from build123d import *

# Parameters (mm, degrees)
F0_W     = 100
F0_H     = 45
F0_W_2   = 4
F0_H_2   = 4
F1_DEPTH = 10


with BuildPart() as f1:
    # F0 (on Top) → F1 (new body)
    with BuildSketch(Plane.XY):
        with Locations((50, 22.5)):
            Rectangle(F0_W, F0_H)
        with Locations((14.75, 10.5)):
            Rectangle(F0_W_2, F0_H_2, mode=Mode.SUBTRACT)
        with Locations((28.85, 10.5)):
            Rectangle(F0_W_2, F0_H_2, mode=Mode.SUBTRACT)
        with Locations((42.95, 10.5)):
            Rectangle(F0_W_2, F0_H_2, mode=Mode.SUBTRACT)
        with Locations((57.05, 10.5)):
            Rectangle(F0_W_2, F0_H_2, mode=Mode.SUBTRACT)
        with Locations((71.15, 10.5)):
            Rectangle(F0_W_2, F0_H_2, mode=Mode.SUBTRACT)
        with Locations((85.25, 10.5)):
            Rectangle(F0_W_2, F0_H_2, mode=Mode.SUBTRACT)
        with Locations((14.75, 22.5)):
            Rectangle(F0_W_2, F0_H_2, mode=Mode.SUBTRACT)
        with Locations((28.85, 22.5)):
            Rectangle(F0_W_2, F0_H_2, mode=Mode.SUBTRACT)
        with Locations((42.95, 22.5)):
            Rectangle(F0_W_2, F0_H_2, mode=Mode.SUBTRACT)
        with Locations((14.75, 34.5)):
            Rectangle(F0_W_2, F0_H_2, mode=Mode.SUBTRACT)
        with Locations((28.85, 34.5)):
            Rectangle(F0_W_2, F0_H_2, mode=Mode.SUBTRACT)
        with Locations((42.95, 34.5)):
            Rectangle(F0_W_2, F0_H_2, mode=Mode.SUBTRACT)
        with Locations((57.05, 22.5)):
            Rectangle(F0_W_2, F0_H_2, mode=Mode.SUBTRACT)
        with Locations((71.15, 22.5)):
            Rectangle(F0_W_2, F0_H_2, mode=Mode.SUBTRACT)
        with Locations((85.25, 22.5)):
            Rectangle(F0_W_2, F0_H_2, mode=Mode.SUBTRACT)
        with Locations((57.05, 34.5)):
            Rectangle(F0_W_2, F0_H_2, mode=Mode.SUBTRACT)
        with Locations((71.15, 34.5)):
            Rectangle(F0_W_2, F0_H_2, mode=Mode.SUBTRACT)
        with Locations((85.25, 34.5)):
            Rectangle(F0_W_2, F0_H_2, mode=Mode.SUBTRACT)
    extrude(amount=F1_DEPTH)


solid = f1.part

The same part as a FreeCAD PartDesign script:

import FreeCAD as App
import Part
import Sketcher
from FreeCAD import Vector
Q = App.Units.Quantity

doc = App.newDocument("Part")
body = doc.addObject("PartDesign::Body", "Body")

# Sketch on XY plane
sketch1 = body.newObject("Sketcher::SketchObject", "Sketch")
sketch1.AttachmentSupport = (doc.getObject("XY_Plane"), [""])
sketch1.MapMode = "FlatFace"
sketch1.addGeometry([
    Part.LineSegment(Vector(0, 45, 0), Vector(0, 0, 0)),  # 0
    Part.LineSegment(Vector(0, 0, 0), Vector(100, 0, 0)),  # 1
    Part.LineSegment(Vector(100, 0, 0), Vector(100, 45, 0)),  # 2
    Part.LineSegment(Vector(100, 45, 0), Vector(0, 45, 0)),  # 3
    Part.LineSegment(Vector(16.8, 8.5, 0), Vector(12.8, 8.5, 0)),  # 4
    Part.LineSegment(Vector(12.8, 8.5, 0), Vector(12.8, 12.5, 0)),  # 5
    Part.LineSegment(Vector(12.8, 12.5, 0), Vector(16.8, 12.5, 0)),  # 6
    Part.LineSegment(Vector(16.8, 12.5, 0), Vector(16.8, 8.5, 0)),  # 7
    Part.LineSegment(Vector(30.9, 8.5, 0), Vector(26.9, 8.5, 0)),  # 8
    Part.LineSegment(Vector(26.9, 8.5, 0), Vector(26.9, 12.5, 0)),  # 9
    Part.LineSegment(Vector(26.9, 12.5, 0), Vector(30.9, 12.5, 0)),  # 10
    Part.LineSegment(Vector(30.9, 12.5, 0), Vector(30.9, 8.5, 0)),  # 11
    Part.LineSegment(Vector(45, 8.5, 0), Vector(41, 8.5, 0)),  # 12
    Part.LineSegment(Vector(41, 8.5, 0), Vector(41, 12.5, 0)),  # 13
    Part.LineSegment(Vector(41, 12.5, 0), Vector(45, 12.5, 0)),  # 14
    Part.LineSegment(Vector(45, 12.5, 0), Vector(45, 8.5, 0)),  # 15
    Part.LineSegment(Vector(59, 8.5, 0), Vector(55, 8.5, 0)),  # 16
    Part.LineSegment(Vector(55, 8.5, 0), Vector(55, 12.5, 0)),  # 17
    Part.LineSegment(Vector(55, 12.5, 0), Vector(59, 12.5, 0)),  # 18
    Part.LineSegment(Vector(59, 12.5, 0), Vector(59, 8.5, 0)),  # 19
    Part.LineSegment(Vector(73.2, 8.5, 0), Vector(69.2, 8.5, 0)),  # 20
    Part.LineSegment(Vector(69.2, 8.5, 0), Vector(69.2, 12.5, 0)),  # 21
    Part.LineSegment(Vector(69.2, 12.5, 0), Vector(73.2, 12.5, 0)),  # 22
    Part.LineSegment(Vector(73.2, 12.5, 0), Vector(73.2, 8.5, 0)),  # 23
    Part.LineSegment(Vector(87.2, 8.5, 0), Vector(83.2, 8.5, 0)),  # 24
    Part.LineSegment(Vector(83.2, 8.5, 0), Vector(83.2, 12.5, 0)),  # 25
    Part.LineSegment(Vector(83.2, 12.5, 0), Vector(87.2, 12.5, 0)),  # 26
    Part.LineSegment(Vector(87.2, 12.5, 0), Vector(87.2, 8.5, 0)),  # 27
    Part.LineSegment(Vector(16.8, 20.5, 0), Vector(12.8, 20.5, 0)),  # 28
    Part.LineSegment(Vector(12.8, 20.5, 0), Vector(12.8, 24.5, 0)),  # 29
    Part.LineSegment(Vector(12.8, 24.5, 0), Vector(16.8, 24.5, 0)),  # 30
    Part.LineSegment(Vector(16.8, 24.5, 0), Vector(16.8, 20.5, 0)),  # 31
    Part.LineSegment(Vector(30.9, 20.5, 0), Vector(26.9, 20.5, 0)),  # 32
    Part.LineSegment(Vector(26.9, 20.5, 0), Vector(26.9, 24.5, 0)),  # 33
    Part.LineSegment(Vector(26.9, 24.5, 0), Vector(30.9, 24.5, 0)),  # 34
    Part.LineSegment(Vector(30.9, 24.5, 0), Vector(30.9, 20.5, 0)),  # 35
    Part.LineSegment(Vector(45, 20.5, 0), Vector(41, 20.5, 0)),  # 36
    Part.LineSegment(Vector(41, 20.5, 0), Vector(41, 24.5, 0)),  # 37
    Part.LineSegment(Vector(41, 24.5, 0), Vector(45, 24.5, 0)),  # 38
    Part.LineSegment(Vector(45, 24.5, 0), Vector(45, 20.5, 0)),  # 39
    Part.LineSegment(Vector(16.8, 32.5, 0), Vector(12.8, 32.5, 0)),  # 40
    Part.LineSegment(Vector(12.8, 32.5, 0), Vector(12.8, 36.5, 0)),  # 41
    Part.LineSegment(Vector(12.8, 36.5, 0), Vector(16.8, 36.5, 0)),  # 42
    Part.LineSegment(Vector(16.8, 36.5, 0), Vector(16.8, 32.5, 0)),  # 43
    Part.LineSegment(Vector(30.9, 32.5, 0), Vector(26.9, 32.5, 0)),  # 44
    Part.LineSegment(Vector(26.9, 32.5, 0), Vector(26.9, 36.5, 0)),  # 45
    Part.LineSegment(Vector(26.9, 36.5, 0), Vector(30.9, 36.5, 0)),  # 46
    Part.LineSegment(Vector(30.9, 36.5, 0), Vector(30.9, 32.5, 0)),  # 47
    Part.LineSegment(Vector(45, 32.5, 0), Vector(41, 32.5, 0)),  # 48
    Part.LineSegment(Vector(41, 32.5, 0), Vector(41, 36.5, 0)),  # 49
    Part.LineSegment(Vector(41, 36.5, 0), Vector(45, 36.5, 0)),  # 50
    Part.LineSegment(Vector(45, 36.5, 0), Vector(45, 32.5, 0)),  # 51
    Part.LineSegment(Vector(59, 20.5, 0), Vector(55, 20.5, 0)),  # 52
    Part.LineSegment(Vector(55, 20.5, 0), Vector(55, 24.5, 0)),  # 53
    Part.LineSegment(Vector(55, 24.5, 0), Vector(59, 24.5, 0)),  # 54
    Part.LineSegment(Vector(59, 24.5, 0), Vector(59, 20.5, 0)),  # 55
    Part.LineSegment(Vector(73.2, 20.5, 0), Vector(69.2, 20.5, 0)),  # 56
    Part.LineSegment(Vector(69.2, 20.5, 0), Vector(69.2, 24.5, 0)),  # 57
    Part.LineSegment(Vector(69.2, 24.5, 0), Vector(73.2, 24.5, 0)),  # 58
    Part.LineSegment(Vector(73.2, 24.5, 0), Vector(73.2, 20.5, 0)),  # 59
    Part.LineSegment(Vector(87.2, 20.5, 0), Vector(83.2, 20.5, 0)),  # 60
    Part.LineSegment(Vector(83.2, 20.5, 0), Vector(83.2, 24.5, 0)),  # 61
    Part.LineSegment(Vector(83.2, 24.5, 0), Vector(87.2, 24.5, 0)),  # 62
    Part.LineSegment(Vector(87.2, 24.5, 0), Vector(87.2, 20.5, 0)),  # 63
    Part.LineSegment(Vector(59, 32.5, 0), Vector(55, 32.5, 0)),  # 64
    Part.LineSegment(Vector(55, 32.5, 0), Vector(55, 36.5, 0)),  # 65
    Part.LineSegment(Vector(55, 36.5, 0), Vector(59, 36.5, 0)),  # 66
    Part.LineSegment(Vector(59, 36.5, 0), Vector(59, 32.5, 0)),  # 67
    Part.LineSegment(Vector(73.2, 32.5, 0), Vector(69.2, 32.5, 0)),  # 68
    Part.LineSegment(Vector(69.2, 32.5, 0), Vector(69.2, 36.5, 0)),  # 69
    Part.LineSegment(Vector(69.2, 36.5, 0), Vector(73.2, 36.5, 0)),  # 70
    Part.LineSegment(Vector(73.2, 36.5, 0), Vector(73.2, 32.5, 0)),  # 71
    Part.LineSegment(Vector(87.2, 32.5, 0), Vector(83.2, 32.5, 0)),  # 72
    Part.LineSegment(Vector(83.2, 32.5, 0), Vector(83.2, 36.5, 0)),  # 73
    Part.LineSegment(Vector(83.2, 36.5, 0), Vector(87.2, 36.5, 0)),  # 74
    Part.LineSegment(Vector(87.2, 36.5, 0), Vector(87.2, 32.5, 0)),  # 75
], False)
sketch1.addConstraint([
    Sketcher.Constraint("Coincident", 0, 2, 1, 1),
    Sketcher.Constraint("Coincident", 1, 2, 2, 1),
    Sketcher.Constraint("Coincident", 2, 2, 3, 1),
    Sketcher.Constraint("Coincident", 3, 2, 0, 1),
    Sketcher.Constraint("Coincident", 4, 2, 5, 1),
    Sketcher.Constraint("Coincident", 5, 2, 6, 1),
    Sketcher.Constraint("Coincident", 6, 2, 7, 1),
    Sketcher.Constraint("Coincident", 7, 2, 4, 1),
    Sketcher.Constraint("Coincident", 8, 2, 9, 1),
    Sketcher.Constraint("Coincident", 9, 2, 10, 1),
    Sketcher.Constraint("Coincident", 10, 2, 11, 1),
    Sketcher.Constraint("Coincident", 11, 2, 8, 1),
    Sketcher.Constraint("Coincident", 12, 2, 13, 1),
    Sketcher.Constraint("Coincident", 13, 2, 14, 1),
    Sketcher.Constraint("Coincident", 14, 2, 15, 1),
    Sketcher.Constraint("Coincident", 15, 2, 12, 1),
    Sketcher.Constraint("Coincident", 16, 2, 17, 1),
    Sketcher.Constraint("Coincident", 17, 2, 18, 1),
    Sketcher.Constraint("Coincident", 18, 2, 19, 1),
    Sketcher.Constraint("Coincident", 19, 2, 16, 1),
    Sketcher.Constraint("Coincident", 20, 2, 21, 1),
    Sketcher.Constraint("Coincident", 21, 2, 22, 1),
    Sketcher.Constraint("Coincident", 22, 2, 23, 1),
    Sketcher.Constraint("Coincident", 23, 2, 20, 1),
    Sketcher.Constraint("Coincident", 24, 2, 25, 1),
    Sketcher.Constraint("Coincident", 25, 2, 26, 1),
    Sketcher.Constraint("Coincident", 26, 2, 27, 1),
    Sketcher.Constraint("Coincident", 27, 2, 24, 1),
    Sketcher.Constraint("Coincident", 28, 2, 29, 1),
    Sketcher.Constraint("Coincident", 29, 2, 30, 1),
    Sketcher.Constraint("Coincident", 30, 2, 31, 1),
    Sketcher.Constraint("Coincident", 31, 2, 28, 1),
    Sketcher.Constraint("Coincident", 32, 2, 33, 1),
    Sketcher.Constraint("Coincident", 33, 2, 34, 1),
    Sketcher.Constraint("Coincident", 34, 2, 35, 1),
    Sketcher.Constraint("Coincident", 35, 2, 32, 1),
    Sketcher.Constraint("Coincident", 36, 2, 37, 1),
    Sketcher.Constraint("Coincident", 37, 2, 38, 1),
    Sketcher.Constraint("Coincident", 38, 2, 39, 1),
    Sketcher.Constraint("Coincident", 39, 2, 36, 1),
    Sketcher.Constraint("Coincident", 40, 2, 41, 1),
    Sketcher.Constraint("Coincident", 41, 2, 42, 1),
    Sketcher.Constraint("Coincident", 42, 2, 43, 1),
    Sketcher.Constraint("Coincident", 43, 2, 40, 1),
    Sketcher.Constraint("Coincident", 44, 2, 45, 1),
    Sketcher.Constraint("Coincident", 45, 2, 46, 1),
    Sketcher.Constraint("Coincident", 46, 2, 47, 1),
    Sketcher.Constraint("Coincident", 47, 2, 44, 1),
    Sketcher.Constraint("Coincident", 48, 2, 49, 1),
    Sketcher.Constraint("Coincident", 49, 2, 50, 1),
    Sketcher.Constraint("Coincident", 50, 2, 51, 1),
    Sketcher.Constraint("Coincident", 51, 2, 48, 1),
    Sketcher.Constraint("Coincident", 52, 2, 53, 1),
    Sketcher.Constraint("Coincident", 53, 2, 54, 1),
    Sketcher.Constraint("Coincident", 54, 2, 55, 1),
    Sketcher.Constraint("Coincident", 55, 2, 52, 1),
    Sketcher.Constraint("Coincident", 56, 2, 57, 1),
    Sketcher.Constraint("Coincident", 57, 2, 58, 1),
    Sketcher.Constraint("Coincident", 58, 2, 59, 1),
    Sketcher.Constraint("Coincident", 59, 2, 56, 1),
    Sketcher.Constraint("Coincident", 60, 2, 61, 1),
    Sketcher.Constraint("Coincident", 61, 2, 62, 1),
    Sketcher.Constraint("Coincident", 62, 2, 63, 1),
    Sketcher.Constraint("Coincident", 63, 2, 60, 1),
    Sketcher.Constraint("Coincident", 64, 2, 65, 1),
    Sketcher.Constraint("Coincident", 65, 2, 66, 1),
    Sketcher.Constraint("Coincident", 66, 2, 67, 1),
    Sketcher.Constraint("Coincident", 67, 2, 64, 1),
    Sketcher.Constraint("Coincident", 68, 2, 69, 1),
    Sketcher.Constraint("Coincident", 69, 2, 70, 1),
    Sketcher.Constraint("Coincident", 70, 2, 71, 1),
    Sketcher.Constraint("Coincident", 71, 2, 68, 1),
    Sketcher.Constraint("Coincident", 72, 2, 73, 1),
    Sketcher.Constraint("Coincident", 73, 2, 74, 1),
    Sketcher.Constraint("Coincident", 74, 2, 75, 1),
    Sketcher.Constraint("Coincident", 75, 2, 72, 1),
    Sketcher.Constraint("Vertical", 0),
    Sketcher.Constraint("Horizontal", 1),
    Sketcher.Constraint("Vertical", 2),
    Sketcher.Constraint("Horizontal", 3),
    Sketcher.Constraint("Horizontal", 4),
    Sketcher.Constraint("Vertical", 5),
    Sketcher.Constraint("Horizontal", 6),
    Sketcher.Constraint("Vertical", 7),
    Sketcher.Constraint("Horizontal", 8),
    Sketcher.Constraint("Vertical", 9),
    Sketcher.Constraint("Horizontal", 10),
    Sketcher.Constraint("Vertical", 11),
    Sketcher.Constraint("Horizontal", 12),
    Sketcher.Constraint("Vertical", 13),
    Sketcher.Constraint("Horizontal", 14),
    Sketcher.Constraint("Vertical", 15),
    Sketcher.Constraint("Horizontal", 16),
    Sketcher.Constraint("Vertical", 17),
    Sketcher.Constraint("Horizontal", 18),
    Sketcher.Constraint("Vertical", 19),
    Sketcher.Constraint("Horizontal", 20),
    Sketcher.Constraint("Vertical", 21),
    Sketcher.Constraint("Horizontal", 22),
    Sketcher.Constraint("Vertical", 23),
    Sketcher.Constraint("Horizontal", 24),
    Sketcher.Constraint("Vertical", 25),
    Sketcher.Constraint("Horizontal", 26),
    Sketcher.Constraint("Vertical", 27),
    Sketcher.Constraint("Horizontal", 28),
    Sketcher.Constraint("Vertical", 29),
    Sketcher.Constraint("Horizontal", 30),
    Sketcher.Constraint("Vertical", 31),
    Sketcher.Constraint("Horizontal", 32),
    Sketcher.Constraint("Vertical", 33),
    Sketcher.Constraint("Horizontal", 34),
    Sketcher.Constraint("Vertical", 35),
    Sketcher.Constraint("Horizontal", 36),
    Sketcher.Constraint("Vertical", 37),
    Sketcher.Constraint("Horizontal", 38),
    Sketcher.Constraint("Vertical", 39),
    Sketcher.Constraint("Horizontal", 40),
    Sketcher.Constraint("Vertical", 41),
    Sketcher.Constraint("Horizontal", 42),
    Sketcher.Constraint("Vertical", 43),
    Sketcher.Constraint("Horizontal", 44),
    Sketcher.Constraint("Vertical", 45),
    Sketcher.Constraint("Horizontal", 46),
    Sketcher.Constraint("Vertical", 47),
    Sketcher.Constraint("Horizontal", 48),
    Sketcher.Constraint("Vertical", 49),
    Sketcher.Constraint("Horizontal", 50),
    Sketcher.Constraint("Vertical", 51),
    Sketcher.Constraint("Horizontal", 52),
    Sketcher.Constraint("Vertical", 53),
    Sketcher.Constraint("Horizontal", 54),
    Sketcher.Constraint("Vertical", 55),
    Sketcher.Constraint("Horizontal", 56),
    Sketcher.Constraint("Vertical", 57),
    Sketcher.Constraint("Horizontal", 58),
    Sketcher.Constraint("Vertical", 59),
    Sketcher.Constraint("Horizontal", 60),
    Sketcher.Constraint("Vertical", 61),
    Sketcher.Constraint("Horizontal", 62),
    Sketcher.Constraint("Vertical", 63),
    Sketcher.Constraint("Horizontal", 64),
    Sketcher.Constraint("Vertical", 65),
    Sketcher.Constraint("Horizontal", 66),
    Sketcher.Constraint("Vertical", 67),
    Sketcher.Constraint("Horizontal", 68),
    Sketcher.Constraint("Vertical", 69),
    Sketcher.Constraint("Horizontal", 70),
    Sketcher.Constraint("Vertical", 71),
    Sketcher.Constraint("Horizontal", 72),
    Sketcher.Constraint("Vertical", 73),
    Sketcher.Constraint("Horizontal", 74),
    Sketcher.Constraint("Vertical", 75),
    Sketcher.Constraint("Coincident", 0, 2, -1, 1),
    Sketcher.Constraint("Horizontal", 7, 2, 8, 2),
    Sketcher.Constraint("Horizontal", 6, 2, 9, 2),
    Sketcher.Constraint("Horizontal", 11, 2, 12, 2),
    Sketcher.Constraint("Horizontal", 10, 2, 13, 2),
    Sketcher.Constraint("Horizontal", 15, 2, 16, 2),
    Sketcher.Constraint("Horizontal", 14, 2, 17, 2),
    Sketcher.Constraint("Horizontal", 19, 2, 20, 2),
    Sketcher.Constraint("Horizontal", 18, 2, 21, 2),
    Sketcher.Constraint("Horizontal", 23, 2, 24, 2),
    Sketcher.Constraint("Horizontal", 22, 2, 25, 2),
    Sketcher.Constraint("Horizontal", 31, 2, 32, 2),
    Sketcher.Constraint("Horizontal", 30, 2, 33, 2),
    Sketcher.Constraint("Horizontal", 35, 2, 36, 2),
    Sketcher.Constraint("Horizontal", 34, 2, 37, 2),
    Sketcher.Constraint("Horizontal", 43, 2, 44, 2),
    Sketcher.Constraint("Horizontal", 42, 2, 45, 2),
    Sketcher.Constraint("Horizontal", 47, 2, 48, 2),
    Sketcher.Constraint("Horizontal", 46, 2, 49, 2),
    Sketcher.Constraint("Horizontal", 39, 2, 52, 2),
    Sketcher.Constraint("Horizontal", 38, 2, 53, 2),
    Sketcher.Constraint("Horizontal", 55, 2, 56, 2),
    Sketcher.Constraint("Horizontal", 54, 2, 57, 2),
    Sketcher.Constraint("Horizontal", 59, 2, 60, 2),
    Sketcher.Constraint("Horizontal", 58, 2, 61, 2),
    Sketcher.Constraint("Horizontal", 51, 2, 64, 2),
    Sketcher.Constraint("Horizontal", 50, 2, 65, 2),
    Sketcher.Constraint("Horizontal", 67, 2, 68, 2),
    Sketcher.Constraint("Horizontal", 66, 2, 69, 2),
    Sketcher.Constraint("Horizontal", 71, 2, 72, 2),
    Sketcher.Constraint("Horizontal", 70, 2, 73, 2),
    Sketcher.Constraint("Vertical", 5, 2, 28, 2),
    Sketcher.Constraint("Vertical", 7, 2, 30, 2),
    Sketcher.Constraint("Vertical", 9, 2, 32, 2),
    Sketcher.Constraint("Vertical", 11, 2, 34, 2),
    Sketcher.Constraint("Vertical", 13, 2, 36, 2),
    Sketcher.Constraint("Vertical", 15, 2, 38, 2),
    Sketcher.Constraint("Vertical", 29, 2, 40, 2),
    Sketcher.Constraint("Vertical", 31, 2, 42, 2),
    Sketcher.Constraint("Vertical", 33, 2, 44, 2),
    Sketcher.Constraint("Vertical", 35, 2, 46, 2),
    Sketcher.Constraint("Vertical", 37, 2, 48, 2),
    Sketcher.Constraint("Vertical", 39, 2, 50, 2),
    Sketcher.Constraint("Vertical", 17, 2, 52, 2),
    Sketcher.Constraint("Vertical", 19, 2, 54, 2),
    Sketcher.Constraint("Vertical", 21, 2, 56, 2),
    Sketcher.Constraint("Vertical", 23, 2, 58, 2),
    Sketcher.Constraint("Vertical", 25, 2, 60, 2),
    Sketcher.Constraint("Vertical", 27, 2, 62, 2),
    Sketcher.Constraint("Vertical", 53, 2, 64, 2),
    Sketcher.Constraint("Vertical", 55, 2, 66, 2),
    Sketcher.Constraint("Vertical", 57, 2, 68, 2),
    Sketcher.Constraint("Vertical", 59, 2, 70, 2),
    Sketcher.Constraint("Vertical", 61, 2, 72, 2),
    Sketcher.Constraint("Vertical", 63, 2, 74, 2),
    Sketcher.Constraint("Equal", 6, 8),
    Sketcher.Constraint("Equal", 10, 12),
    Sketcher.Constraint("Equal", 14, 16),
    Sketcher.Constraint("Equal", 18, 20),
    Sketcher.Constraint("Equal", 22, 24),
    Sketcher.Constraint("Equal", 74, 5),
    Sketcher.Constraint("Equal", 27, 29),
    Sketcher.Constraint("Equal", 39, 41),
    Sketcher.Constraint("DistanceX", 1, 1, 1, 2, Q("100 mm")),
    Sketcher.Constraint("DistanceX", 4, 2, 4, 1, Q("4 mm")),
    Sketcher.Constraint("DistanceY", 0, 2, 0, 1, Q("45 mm")),
    Sketcher.Constraint("DistanceY", -1, 1, 4, 2, Q("8.5 mm")),
    Sketcher.Constraint("DistanceY", -1, 1, 28, 2, Q("20.5 mm")),
    Sketcher.Constraint("DistanceY", -1, 1, 40, 2, Q("32.5 mm")),
    Sketcher.Constraint("DistanceX", -1, 1, 4, 2, Q("12.75 mm")),
    Sketcher.Constraint("DistanceX", -1, 1, 8, 2, Q("26.85 mm")),
    Sketcher.Constraint("DistanceX", -1, 1, 12, 2, Q("40.95 mm")),
    Sketcher.Constraint("DistanceX", -1, 1, 16, 2, Q("55.05 mm")),
    Sketcher.Constraint("DistanceX", -1, 1, 20, 2, Q("69.15 mm")),
    Sketcher.Constraint("DistanceX", -1, 1, 24, 2, Q("83.25 mm")),
])
pad1 = body.newObject("PartDesign::Pad", "Pad")
pad1.Profile = sketch1
pad1.Length = 10

doc.recompute()
